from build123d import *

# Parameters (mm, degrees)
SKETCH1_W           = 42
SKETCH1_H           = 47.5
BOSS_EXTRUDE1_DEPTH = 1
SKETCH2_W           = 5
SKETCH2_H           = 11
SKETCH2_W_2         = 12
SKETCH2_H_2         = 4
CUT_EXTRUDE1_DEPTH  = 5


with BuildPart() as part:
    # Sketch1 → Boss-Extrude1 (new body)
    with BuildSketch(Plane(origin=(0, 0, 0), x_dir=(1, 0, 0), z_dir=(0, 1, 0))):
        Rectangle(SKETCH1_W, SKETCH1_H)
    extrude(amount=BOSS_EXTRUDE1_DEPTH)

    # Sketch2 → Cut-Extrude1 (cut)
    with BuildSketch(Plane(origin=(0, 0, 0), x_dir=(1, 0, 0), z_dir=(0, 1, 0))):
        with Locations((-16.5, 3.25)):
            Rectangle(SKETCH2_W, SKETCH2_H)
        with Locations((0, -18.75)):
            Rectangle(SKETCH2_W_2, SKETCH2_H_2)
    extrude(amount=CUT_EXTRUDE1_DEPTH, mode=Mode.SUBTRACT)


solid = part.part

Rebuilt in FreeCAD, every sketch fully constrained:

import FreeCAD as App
import Part
import Sketcher

V = App.Vector
Q = App.Units.Quantity

doc = App.newDocument("Part")
body = doc.addObject("PartDesign::Body", "Body")

# Sketch on XZ plane
sketch1 = body.newObject("Sketcher::SketchObject", "Sketch")
sketch1.AttachmentSupport = (doc.getObject("XZ_Plane"), [""])
sketch1.MapMode = "FlatFace"
sketch1.addGeometry([
    Part.LineSegment(V(-21, -24, 0), V(-21, 24, 0)),
    Part.LineSegment(V(-21, 24, 0), V(21, 24, 0)),
    Part.LineSegment(V(21, 24, 0), V(21, -24, 0)),
    Part.LineSegment(V(21, -24, 0), V(-21, -24, 0)),
], False)
sketch1.addConstraint([
    Sketcher.Constraint("Coincident", 0, 2, 1, 1),
    Sketcher.Constraint("Coincident", 1, 2, 2, 1),
    Sketcher.Constraint("Coincident", 2, 2, 3, 1),
    Sketcher.Constraint("Coincident", 3, 2, 0, 1),
    Sketcher.Constraint("Vertical", 0),
    Sketcher.Constraint("Horizontal", 1),
    Sketcher.Constraint("Vertical", 2),
    Sketcher.Constraint("Horizontal", 3),
    Sketcher.Constraint("Symmetric", 0, 2, 2, 2, -1, 1),
    Sketcher.Constraint("DistanceX", 1, 1, 1, 2, Q("42 mm")),
    Sketcher.Constraint("DistanceY", 0, 1, 0, 2, Q("47.5 mm")),
])
pad1 = body.newObject("PartDesign::Pad", "Pad")
pad1.Profile = sketch1
pad1.Length = 1
pad1.Reversed = True

# Sketch on XZ plane
sketch2 = body.newObject("Sketcher::SketchObject", "Sketch001")
sketch2.AttachmentSupport = (doc.getObject("XZ_Plane"), [""])
sketch2.MapMode = "FlatFace"
sketch2.addGeometry([
    Part.LineSegment(V(-19, -8.8, 0), V(-19, 2.2, 0)),  # 0
    Part.LineSegment(V(-19, 2.2, 0), V(-14, 2.2, 0)),  # 1
    Part.LineSegment(V(-14, 2.2, 0), V(-14, -8.8, 0)),  # 2
    Part.LineSegment(V(-14, -8.8, 0), V(-19, -8.8, 0)),  # 3
    Part.LineSegment(V(-6, 16.8, 0), V(-6, 20.8, 0)),  # 4
    Part.LineSegment(V(-6, 20.8, 0), V(6, 20.8, 0)),  # 5
    Part.LineSegment(V(6, 20.8, 0), V(6, 16.8, 0)),  # 6
    Part.LineSegment(V(6, 16.8, 0), V(-6, 16.8, 0)),  # 7
], False)
sketch2.addConstraint([
    Sketcher.Constraint("Coincident", 0, 2, 1, 1),
    Sketcher.Constraint("Coincident", 1, 2, 2, 1),
    Sketcher.Constraint("Coincident", 2, 2, 3, 1),
    Sketcher.Constraint("Coincident", 3, 2, 0, 1),
    Sketcher.Constraint("Coincident", 4, 2, 5, 1),
    Sketcher.Constraint("Coincident", 5, 2, 6, 1),
    Sketcher.Constraint("Coincident", 6, 2, 7, 1),
    Sketcher.Constraint("Coincident", 7, 2, 4, 1),
    Sketcher.Constraint("Vertical", 0),
    Sketcher.Constraint("Horizontal", 1),
    Sketcher.Constraint("Vertical", 2),
    Sketcher.Constraint("Horizontal", 3),
    Sketcher.Constraint("Vertical", 4),
    Sketcher.Constraint("Horizontal", 5),
    Sketcher.Constraint("Vertical", 6),
    Sketcher.Constraint("Horizontal", 7),
    Sketcher.Constraint("DistanceX", 1, 1, 1, 2, Q("5 mm")),
    Sketcher.Constraint("DistanceX", 5, 1, 5, 2, Q("12 mm")),
    Sketcher.Constraint("DistanceY", 0, 1, 0, 2, Q("11 mm")),
    Sketcher.Constraint("DistanceY", 4, 1, 4, 2, Q("4 mm")),
    Sketcher.Constraint("DistanceX", 0, 2, -1, 1, Q("19 mm")),
    Sketcher.Constraint("DistanceX", 4, 2, -1, 1, Q("6 mm")),
    Sketcher.Constraint("DistanceY", 1, 2, 4, 2, Q("18.5 mm")),
    Sketcher.Constraint("DistanceY", -1, 1, 0, 2, Q("2.25 mm")),
])
pocket1 = body.newObject("PartDesign::Pocket", "Pocket")
pocket1.Profile = sketch2
pocket1.Length = 5

doc.recompute()
